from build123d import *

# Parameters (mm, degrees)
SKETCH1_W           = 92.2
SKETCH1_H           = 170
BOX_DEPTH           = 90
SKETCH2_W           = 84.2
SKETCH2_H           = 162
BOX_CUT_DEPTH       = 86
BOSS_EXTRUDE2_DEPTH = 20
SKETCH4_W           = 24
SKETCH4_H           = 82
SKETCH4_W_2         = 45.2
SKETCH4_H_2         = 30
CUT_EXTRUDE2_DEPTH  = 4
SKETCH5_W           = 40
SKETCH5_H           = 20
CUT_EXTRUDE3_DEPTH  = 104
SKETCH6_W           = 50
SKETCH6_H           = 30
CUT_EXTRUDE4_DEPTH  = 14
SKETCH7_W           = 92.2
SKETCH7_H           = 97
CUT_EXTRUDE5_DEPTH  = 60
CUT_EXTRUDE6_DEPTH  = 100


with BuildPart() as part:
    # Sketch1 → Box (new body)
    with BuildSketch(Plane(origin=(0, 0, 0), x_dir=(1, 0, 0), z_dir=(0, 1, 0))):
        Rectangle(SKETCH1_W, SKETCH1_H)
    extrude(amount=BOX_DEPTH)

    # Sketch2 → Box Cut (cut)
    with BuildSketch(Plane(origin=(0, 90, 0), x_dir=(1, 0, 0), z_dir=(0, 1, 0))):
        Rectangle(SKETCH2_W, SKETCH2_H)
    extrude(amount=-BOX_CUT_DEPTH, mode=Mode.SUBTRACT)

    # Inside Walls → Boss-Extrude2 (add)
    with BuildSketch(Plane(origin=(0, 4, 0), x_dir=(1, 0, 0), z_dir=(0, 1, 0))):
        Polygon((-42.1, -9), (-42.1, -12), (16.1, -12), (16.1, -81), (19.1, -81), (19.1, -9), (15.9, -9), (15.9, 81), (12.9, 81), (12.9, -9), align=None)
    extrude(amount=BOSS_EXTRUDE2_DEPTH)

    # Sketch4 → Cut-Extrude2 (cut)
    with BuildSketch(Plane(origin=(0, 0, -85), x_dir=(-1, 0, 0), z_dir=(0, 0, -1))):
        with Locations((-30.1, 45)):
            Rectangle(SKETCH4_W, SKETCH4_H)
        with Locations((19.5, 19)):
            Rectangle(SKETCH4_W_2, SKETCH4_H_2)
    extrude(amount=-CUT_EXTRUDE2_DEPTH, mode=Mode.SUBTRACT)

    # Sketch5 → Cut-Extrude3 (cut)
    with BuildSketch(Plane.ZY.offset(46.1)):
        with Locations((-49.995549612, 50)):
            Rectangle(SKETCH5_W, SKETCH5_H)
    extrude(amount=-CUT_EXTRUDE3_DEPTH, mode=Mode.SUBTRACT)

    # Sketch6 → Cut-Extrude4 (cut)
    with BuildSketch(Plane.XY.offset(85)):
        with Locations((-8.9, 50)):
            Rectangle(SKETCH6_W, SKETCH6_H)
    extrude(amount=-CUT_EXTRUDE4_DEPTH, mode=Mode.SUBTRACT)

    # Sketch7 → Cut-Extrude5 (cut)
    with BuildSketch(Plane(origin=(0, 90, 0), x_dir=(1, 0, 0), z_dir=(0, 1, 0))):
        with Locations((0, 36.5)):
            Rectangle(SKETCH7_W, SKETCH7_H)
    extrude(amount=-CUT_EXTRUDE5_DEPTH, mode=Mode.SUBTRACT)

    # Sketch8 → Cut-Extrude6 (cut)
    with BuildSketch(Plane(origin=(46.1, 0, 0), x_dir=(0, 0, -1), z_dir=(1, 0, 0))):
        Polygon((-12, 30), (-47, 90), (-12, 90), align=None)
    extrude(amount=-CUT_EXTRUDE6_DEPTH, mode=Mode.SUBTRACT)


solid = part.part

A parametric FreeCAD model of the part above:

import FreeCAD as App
import Part
import Sketcher
from FreeCAD import Vector

doc = App.newDocument("Part")
body = doc.addObject("PartDesign::Body", "Body")

# Sketch on XZ plane
sketch1 = doc.addObject("Sketcher::SketchObject", "Sketch")
body.addObject(sketch1)
sketch1.AttachmentSupport = (doc.XZ_Plane, [""])
sketch1.MapMode = "FlatFace"
sketch1.addGeometry([
    Part.LineSegment(Vector(-46, -85, 0), Vector(-46, 85, 0)),
    Part.LineSegment(Vector(-46, 85, 0), Vector(46, 85, 0)),
    Part.LineSegment(Vector(46, 85, 0), Vector(46, -85, 0)),
    Part.LineSegment(Vector(46, -85, 0), Vector(-46, -85, 0)),
], False)
sketch1.addConstraint([
    Sketcher.Constraint("Coincident", 0, 2, 1, 1),
    Sketcher.Constraint("Coincident", 1, 2, 2, 1),
    Sketcher.Constraint("Coincident", 2, 2, 3, 1),
    Sketcher.Constraint("Coincident", 3, 2, 0, 1),
    Sketcher.Constraint("Vertical", 0),
    Sketcher.Constraint("Horizontal", 1),
    Sketcher.Constraint("Vertical", 2),
    Sketcher.Constraint("Horizontal", 3),
    Sketcher.Constraint("Symmetric", 0, 2, 2, 2, -1, 1),
    Sketcher.Constraint("DistanceY", 0, 1, 0, 2, 170.0),
    Sketcher.Constraint("DistanceX", 1, 1, 1, 2, 92.2),
])
pad1 = doc.addObject("PartDesign::Pad", "Pad")
body.addObject(pad1)
pad1.Profile = sketch1
pad1.Length = 90
pad1.Reversed = True

# Sketch on XZ plane
sketch2 = doc.addObject("Sketcher::SketchObject", "Sketch001")
body.addObject(sketch2)
sketch2.AttachmentSupport = (doc.XZ_Plane, [""])
sketch2.MapMode = "FlatFace"
sketch2.AttachmentOffset = App.Placement(Vector(0, 0, -90), App.Rotation())
sketch2.addGeometry([
    Part.LineSegment(Vector(-42, -81, 0), Vector(-42, 81, 0)),
    Part.LineSegment(Vector(-42, 81, 0), Vector(42, 81, 0)),
    Part.LineSegment(Vector(42, 81, 0), Vector(42, -81, 0)),
    Part.LineSegment(Vector(42, -81, 0), Vector(-42, -81, 0)),
], False)
sketch2.addConstraint([
    Sketcher.Constraint("Coincident", 0, 2, 1, 1),
    Sketcher.Constraint("Coincident", 1, 2, 2, 1),
    Sketcher.Constraint("Coincident", 2, 2, 3, 1),
    Sketcher.Constraint("Coincident", 3, 2, 0, 1),
    Sketcher.Constraint("Vertical", 0),
    Sketcher.Constraint("Horizontal", 1),
    Sketcher.Constraint("Vertical", 2),
    Sketcher.Constraint("Horizontal", 3),
    Sketcher.Constraint("Symmetric", 0, 2, 2, 2, -1, 1),
    Sketcher.Constraint("DistanceY", 0, 1, 0, 2, 162.0),
    Sketcher.Constraint("DistanceX", 1, 1, 1, 2, 84.2),
])
pocket1 = doc.addObject("PartDesign::Pocket", "Pocket")
body.addObject(pocket1)
pocket1.Profile = sketch2
pocket1.Length = 86
pocket1.Reversed = True

# Sketch on XZ plane
sketch3 = doc.addObject("Sketcher::SketchObject", "Sketch002")
body.addObject(sketch3)
sketch3.AttachmentSupport = (doc.XZ_Plane, [""])
sketch3.MapMode = "FlatFace"
sketch3.AttachmentOffset = App.Placement(Vector(0, 0, -4), App.Rotation())
sketch3.addGeometry([
    Part.LineSegment(Vector(-42.1, 9, 0), Vector(-42.1, 12, 0)),  # 0
    Part.LineSegment(Vector(-42.1, 12, 0), Vector(16.1, 12, 0)),  # 1
    Part.LineSegment(Vector(16.1, 12, 0), Vector(16.1, 81, 0)),  # 2
    Part.LineSegment(Vector(16.1, 81, 0), Vector(19.1, 81, 0)),  # 3
    Part.LineSegment(Vector(19.1, 81, 0), Vector(19.1, 9, 0)),  # 4
    Part.LineSegment(Vector(19.1, 9, 0), Vector(15.9, 9, 0)),  # 5
    Part.LineSegment(Vector(15.9, 9, 0), Vector(15.9, -81, 0)),  # 6
    Part.LineSegment(Vector(15.9, -81, 0), Vector(12.9, -81, 0)),  # 7
    Part.LineSegment(Vector(12.9, -81, 0), Vector(12.9, 9, 0)),  # 8
    Part.LineSegment(Vector(12.9, 9, 0), Vector(-42.1, 9, 0)),  # 9
], False)
sketch3.addConstraint([
    Sketcher.Constraint("Coincident", 0, 2, 1, 1),
    Sketcher.Constraint("Coincident", 1, 2, 2, 1),
    Sketcher.Constraint("Coincident", 2, 2, 3, 1),
    Sketcher.Constraint("Coincident", 3, 2, 4, 1),
    Sketcher.Constraint("Coincident", 4, 2, 5, 1),
    Sketcher.Constraint("Coincident", 5, 2, 6, 1),
    Sketcher.Constraint("Coincident", 6, 2, 7, 1),
    Sketcher.Constraint("Coincident", 7, 2, 8, 1),
    Sketcher.Constraint("Coincident", 8, 2, 9, 1),
    Sketcher.Constraint("Coincident", 9, 2, 0, 1),
    Sketcher.Constraint("Vertical", 0),
    Sketcher.Constraint("Horizontal", 1),
    Sketcher.Constraint("Vertical", 2),
    Sketcher.Constraint("Horizontal", 3),
    Sketcher.Constraint("Vertical", 4),
    Sketcher.Constraint("Horizontal", 5),
    Sketcher.Constraint("Vertical", 6),
    Sketcher.Constraint("Horizontal", 7),
    Sketcher.Constraint("Vertical", 8),
    Sketcher.Constraint("Horizontal", 9),
    Sketcher.Constraint("Horizontal", 5, 2, 8, 2),
    Sketcher.Constraint("Equal", 3, 7),
    Sketcher.Constraint("Equal", 7, 0),
    Sketcher.Constraint("DistanceX", 3, 1, 3, 2, 3.0),
    Sketcher.Constraint("DistanceX", 9, 2, 9, 1, 55.0),
    Sketcher.Constraint("DistanceY", 2, 1, 2, 2, 69.0),
    Sketcher.Constraint("DistanceY", 6, 2, 6, 1, 90.0),
    Sketcher.Constraint("DistanceX", 1, 1, 1, 2, 58.2),
    Sketcher.Constraint("DistanceY", -1, 1, 0, 2, 12.0),
    Sketcher.Constraint("DistanceX", 0, 2, -1, 1, 42.1),
])
pad2 = doc.addObject("PartDesign::Pad", "Pad001")
body.addObject(pad2)
pad2.Profile = sketch3
pad2.Length = 20
pad2.Reversed = True

# Sketch on XY plane
sketch4 = doc.addObject("Sketcher::SketchObject", "Sketch003")
body.addObject(sketch4)
sketch4.AttachmentSupport = (doc.XY_Plane, [""])
sketch4.MapMode = "FlatFace"
sketch4.AttachmentOffset = App.Placement(Vector(0, 0, -85), App.Rotation())
sketch4.addGeometry([
    Part.LineSegment(Vector(42, 86, 0), Vector(42, 4, 0)),  # 0
    Part.LineSegment(Vector(42, 4, 0), Vector(18, 4, 0)),  # 1
    Part.LineSegment(Vector(18, 4, 0), Vector(18, 86, 0)),  # 2
    Part.LineSegment(Vector(18, 86, 0), Vector(42, 86, 0)),  # 3
    Part.LineSegment(Vector(3, 34, 0), Vector(3, 4, 0)),  # 4
    Part.LineSegment(Vector(3, 4, 0), Vector(-42, 4, 0)),  # 5
    Part.LineSegment(Vector(-42, 4, 0), Vector(-42, 34, 0)),  # 6
    Part.LineSegment(Vector(-42, 34, 0), Vector(3, 34, 0)),  # 7
], False)
sketch4.addConstraint([
    Sketcher.Constraint("Coincident", 0, 2, 1, 1),
    Sketcher.Constraint("Coincident", 1, 2, 2, 1),
    Sketcher.Constraint("Coincident", 2, 2, 3, 1),
    Sketcher.Constraint("Coincident", 3, 2, 0, 1),
    Sketcher.Constraint("Coincident", 4, 2, 5, 1),
    Sketcher.Constraint("Coincident", 5, 2, 6, 1),
    Sketcher.Constraint("Coincident", 6, 2, 7, 1),
    Sketcher.Constraint("Coincident", 7, 2, 4, 1),
    Sketcher.Constraint("Vertical", 0),
    Sketcher.Constraint("Horizontal", 1),
    Sketcher.Constraint("Vertical", 2),
    Sketcher.Constraint("Horizontal", 3),
    Sketcher.Constraint("Vertical", 4),
    Sketcher.Constraint("Horizontal", 5),
    Sketcher.Constraint("Vertical", 6),
    Sketcher.Constraint("Horizontal", 7),
    Sketcher.Constraint("Symmetric", 0, 2, 5, 2, -2),
    Sketcher.Constraint("DistanceX", 1, 2, 1, 1, 24.0),
    Sketcher.Constraint("DistanceY", 0, 2, 0, 1, 82.0),
    Sketcher.Constraint("DistanceY", 4, 2, 4, 1, 30.0),
    Sketcher.Constraint("DistanceX", 5, 2, 5, 1, 45.2),
    Sketcher.Constraint("DistanceY", -1, 1, 0, 2, 4.0),
    Sketcher.Constraint("DistanceX", 4, 2, 1, 2, 15.0),
])
pocket2 = doc.addObject("PartDesign::Pocket", "Pocket001")
body.addObject(pocket2)
pocket2.Profile = sketch4
pocket2.Length = 4
pocket2.Reversed = True

# Sketch on YZ plane
sketch5 = doc.addObject("Sketcher::SketchObject", "Sketch004")
body.addObject(sketch5)
sketch5.AttachmentSupport = (doc.YZ_Plane, [""])
sketch5.MapMode = "FlatFace"
sketch5.AttachmentOffset = App.Placement(Vector(0, 0, -46.1), App.Rotation())
sketch5.addGeometry([
    Part.LineSegment(Vector(60, -70, 0), Vector(40, -70, 0)),
    Part.LineSegment(Vector(40, -70, 0), Vector(40, -30, 0)),
    Part.LineSegment(Vector(40, -30, 0), Vector(60, -30, 0)),
    Part.LineSegment(Vector(60, -30, 0), Vector(60, -70, 0)),
], False)
sketch5.addConstraint([
    Sketcher.Constraint("Coincident", 0, 2, 1, 1),
    Sketcher.Constraint("Coincident", 1, 2, 2, 1),
    Sketcher.Constraint("Coincident", 2, 2, 3, 1),
    Sketcher.Constraint("Coincident", 3, 2, 0, 1),
    Sketcher.Constraint("Horizontal", 0),
    Sketcher.Constraint("Vertical", 1),
    Sketcher.Constraint("Horizontal", 2),
    Sketcher.Constraint("Vertical", 3),
    Sketcher.Constraint("DistanceX", 0, 2, 0, 1, 20.0),
    Sketcher.Constraint("DistanceY", 1, 1, 1, 2, 40.0),
    Sketcher.Constraint("DistanceX", -1, 1, 0, 2, 40.0),
    Sketcher.Constraint("DistanceY", 0, 2, -1, 1, 69.99555),
])
pocket3 = doc.addObject("PartDesign::Pocket", "Pocket002")
body.addObject(pocket3)
pocket3.Profile = sketch5
pocket3.Length = 104
pocket3.Reversed = True

# Sketch on XY plane
sketch6 = doc.addObject("Sketcher::SketchObject", "Sketch005")
body.addObject(sketch6)
sketch6.AttachmentSupport = (doc.XY_Plane, [""])
sketch6.MapMode = "FlatFace"
sketch6.AttachmentOffset = App.Placement(Vector(0, 0, 85), App.Rotation())
sketch6.addGeometry([
    Part.LineSegment(Vector(-34, 65, 0), Vector(-34, 35, 0)),
    Part.LineSegment(Vector(-34, 35, 0), Vector(16, 35, 0)),
    Part.LineSegment(Vector(16, 35, 0), Vector(16, 65, 0)),
    Part.LineSegment(Vector(16, 65, 0), Vector(-34, 65, 0)),
], False)
sketch6.addConstraint([
    Sketcher.Constraint("Coincident", 0, 2, 1, 1),
    Sketcher.Constraint("Coincident", 1, 2, 2, 1),
    Sketcher.Constraint("Coincident", 2, 2, 3, 1),
    Sketcher.Constraint("Coincident", 3, 2, 0, 1),
    Sketcher.Constraint("Vertical", 0),
    Sketcher.Constraint("Horizontal", 1),
    Sketcher.Constraint("Vertical", 2),
    Sketcher.Constraint("Horizontal", 3),
    Sketcher.Constraint("DistanceX", 1, 1, 1, 2, 50.0),
    Sketcher.Constraint("DistanceY", 0, 2, 0, 1, 30.0),
    Sketcher.Constraint("DistanceY", -1, 1, 0, 2, 35.0),
    Sketcher.Constraint("DistanceX", 0, 2, -1, 1, 33.9),
])
pocket4 = doc.addObject("PartDesign::Pocket", "Pocket003")
body.addObject(pocket4)
pocket4.Profile = sketch6
pocket4.Length = 14

# Sketch on XZ plane
sketch7 = doc.addObject("Sketcher::SketchObject", "Sketch006")
body.addObject(sketch7)
sketch7.AttachmentSupport = (doc.XZ_Plane, [""])
sketch7.MapMode = "FlatFace"
sketch7.AttachmentOffset = App.Placement(Vector(0, 0, -90), App.Rotation())
sketch7.addGeometry([
    Part.LineSegment(Vector(-46, -85, 0), Vector(-46, 12, 0)),
    Part.LineSegment(Vector(-46, 12, 0), Vector(46, 12, 0)),
    Part.LineSegment(Vector(46, 12, 0), Vector(46, -85, 0)),
    Part.LineSegment(Vector(46, -85, 0), Vector(-46, -85, 0)),
], False)
sketch7.addConstraint([
    Sketcher.Constraint("Coincident", 0, 2, 1, 1),
    Sketcher.Constraint("Coincident", 1, 2, 2, 1),
    Sketcher.Constraint("Coincident", 2, 2, 3, 1),
    Sketcher.Constraint("Coincident", 3, 2, 0, 1),
    Sketcher.Constraint("Vertical", 0),
    Sketcher.Constraint("Horizontal", 1),
    Sketcher.Constraint("Vertical", 2),
    Sketcher.Constraint("Horizontal", 3),
    Sketcher.Constraint("DistanceY", 0, 1, 0, 2, 97.0),
    Sketcher.Constraint("DistanceX", 1, 1, 1, 2, 92.2),
    Sketcher.Constraint("DistanceY", -1, 1, 0, 2, 12.0),
    Sketcher.Constraint("DistanceX", 0, 2, -1, 1, 46.1),
])
pocket5 = doc.addObject("PartDesign::Pocket", "Pocket004")
body.addObject(pocket5)
pocket5.Profile = sketch7
pocket5.Length = 60
pocket5.Reversed = True

# Sketch on YZ plane
sketch8 = doc.addObject("Sketcher::SketchObject", "Sketch007")
body.addObject(sketch8)
sketch8.AttachmentSupport = (doc.YZ_Plane, [""])
sketch8.MapMode = "FlatFace"
sketch8.AttachmentOffset = App.Placement(Vector(0, 0, 46.1), App.Rotation())
sketch8.addGeometry([
    Part.LineSegment(Vector(90, 47, 0), Vector(30, 12, 0)),
    Part.LineSegment(Vector(30, 12, 0), Vector(90, 12, 0)),
    Part.LineSegment(Vector(90, 12, 0), Vector(90, 47, 0)),
], False)
sketch8.addConstraint([
    Sketcher.Constraint("Coincident", 0, 2, 1, 1),
    Sketcher.Constraint("Coincident", 1, 2, 2, 1),
    Sketcher.Constraint("Coincident", 2, 2, 0, 1),
    Sketcher.Constraint("Horizontal", 1),
    Sketcher.Constraint("Vertical", 2),
    Sketcher.Constraint("DistanceX", 1, 1, 1, 2, 60.0),
    Sketcher.Constraint("DistanceY", 2, 1, 2, 2, 35.0),
    Sketcher.Constraint("DistanceX", -1, 1, 0, 2, 30.0),
    Sketcher.Constraint("DistanceY", -1, 1, 0, 2, 12.0),
])
pocket6 = doc.addObject("PartDesign::Pocket", "Pocket005")
body.addObject(pocket6)
pocket6.Profile = sketch8
pocket6.Length = 100

doc.recompute()
